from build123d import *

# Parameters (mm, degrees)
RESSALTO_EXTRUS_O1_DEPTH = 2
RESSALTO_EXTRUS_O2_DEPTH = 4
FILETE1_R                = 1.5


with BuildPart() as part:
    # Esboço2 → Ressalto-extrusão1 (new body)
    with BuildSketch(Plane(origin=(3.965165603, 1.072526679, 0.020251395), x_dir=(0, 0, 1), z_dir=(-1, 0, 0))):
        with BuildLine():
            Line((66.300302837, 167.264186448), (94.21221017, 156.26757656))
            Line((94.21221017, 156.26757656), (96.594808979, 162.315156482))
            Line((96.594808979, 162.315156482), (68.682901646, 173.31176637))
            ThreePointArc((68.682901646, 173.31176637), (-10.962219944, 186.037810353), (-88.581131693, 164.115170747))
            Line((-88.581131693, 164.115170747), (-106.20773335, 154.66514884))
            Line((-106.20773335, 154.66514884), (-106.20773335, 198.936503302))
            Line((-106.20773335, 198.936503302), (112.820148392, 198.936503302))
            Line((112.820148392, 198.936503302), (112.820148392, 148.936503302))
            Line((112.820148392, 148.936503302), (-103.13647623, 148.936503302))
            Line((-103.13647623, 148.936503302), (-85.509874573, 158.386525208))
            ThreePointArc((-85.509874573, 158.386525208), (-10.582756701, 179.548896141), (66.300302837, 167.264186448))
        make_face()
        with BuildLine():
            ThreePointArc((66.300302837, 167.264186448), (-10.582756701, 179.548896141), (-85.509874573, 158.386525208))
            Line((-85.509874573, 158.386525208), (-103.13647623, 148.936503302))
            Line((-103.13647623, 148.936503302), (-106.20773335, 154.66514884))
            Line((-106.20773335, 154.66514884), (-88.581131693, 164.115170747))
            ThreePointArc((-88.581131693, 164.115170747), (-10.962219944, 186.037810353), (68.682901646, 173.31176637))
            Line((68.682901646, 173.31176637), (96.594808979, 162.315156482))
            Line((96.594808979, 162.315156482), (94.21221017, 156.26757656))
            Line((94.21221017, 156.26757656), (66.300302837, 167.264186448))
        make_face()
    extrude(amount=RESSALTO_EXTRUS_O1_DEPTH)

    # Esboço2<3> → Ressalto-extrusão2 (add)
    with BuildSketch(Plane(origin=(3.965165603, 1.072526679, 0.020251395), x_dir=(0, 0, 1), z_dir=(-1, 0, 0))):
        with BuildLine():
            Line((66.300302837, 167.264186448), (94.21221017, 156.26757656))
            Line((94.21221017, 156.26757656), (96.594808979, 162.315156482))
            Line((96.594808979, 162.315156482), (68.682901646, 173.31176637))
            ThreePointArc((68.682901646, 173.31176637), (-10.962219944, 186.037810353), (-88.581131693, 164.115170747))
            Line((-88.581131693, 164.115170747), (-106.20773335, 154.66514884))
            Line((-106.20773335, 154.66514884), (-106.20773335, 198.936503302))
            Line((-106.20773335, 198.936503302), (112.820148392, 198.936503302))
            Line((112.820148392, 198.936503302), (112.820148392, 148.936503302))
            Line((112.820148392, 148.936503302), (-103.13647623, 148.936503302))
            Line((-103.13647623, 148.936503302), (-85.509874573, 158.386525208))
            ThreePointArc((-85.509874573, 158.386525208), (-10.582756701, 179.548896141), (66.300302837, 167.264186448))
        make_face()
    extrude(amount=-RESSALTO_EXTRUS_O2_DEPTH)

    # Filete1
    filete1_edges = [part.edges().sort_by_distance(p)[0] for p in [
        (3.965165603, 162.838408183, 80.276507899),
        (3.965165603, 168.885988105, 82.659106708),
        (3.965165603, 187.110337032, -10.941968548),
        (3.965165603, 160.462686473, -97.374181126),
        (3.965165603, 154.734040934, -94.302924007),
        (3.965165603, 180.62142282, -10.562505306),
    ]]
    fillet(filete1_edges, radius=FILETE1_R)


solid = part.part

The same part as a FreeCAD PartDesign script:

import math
import FreeCAD as App
import Part
import Sketcher

V = App.Vector
Q = App.Units.Quantity


def edges_at(feature, points):
    """Names of the edges that pass closest to the given points."""
    edges = feature.Shape.Edges
    near = lambda p: min(range(len(edges)), key=lambda i: edges[i].distToShape(Part.Vertex(*p))[0])
    return sorted({f"Edge{near(p) + 1}" for p in points})


def add_polygon(sketch, points):
    """Adds a closed chain of lines whose ends are joined by coincident constraints."""
    first, n = sketch.GeometryCount, len(points)
    for a, b in zip(points, points[1:] + points[:1]):
        sketch.addGeometry(Part.LineSegment(App.Vector(*a, 0), App.Vector(*b, 0)), False)
    for i in range(n):
        sketch.addConstraint(Sketcher.Constraint("Coincident", first + i, 2, first + (i + 1) % n, 1))

doc = App.newDocument("Part")
body = doc.addObject("PartDesign::Body", "Body")

# Sketch on YZ plane
sketch1 = body.newObject("Sketcher::SketchObject", "Sketch")
sketch1.AttachmentSupport = (doc.getObject("YZ_Plane"), [""])
sketch1.MapMode = "FlatFace"
sketch1.AttachmentOffset = App.Placement(V(0, 0, 3.965166), App.Rotation())
add_polygon(sketch1, [(200.00903, -106.187482), (155.737676, -106.187482), (150.00903, -103.116225), (150.00903, 112.8404), (200.00903, 112.8404)])  # lines 0-4
sketch1.addConstraint(Sketcher.Constraint("Horizontal", 0))
sketch1.addConstraint(Sketcher.Constraint("Vertical", 2))
sketch1.addConstraint(Sketcher.Constraint("Horizontal", 3))
sketch1.addConstraint(Sketcher.Constraint("Vertical", 4))
sketch1.addConstraint(Sketcher.Constraint("DistanceX", 3, 1, 3, 2, Q("50 mm")))
sketch1.addConstraint(Sketcher.Constraint("Distance", 1, Q("6.5 mm")))
sketch1.addConstraint(Sketcher.Constraint("DistanceY", 4, 2, 4, 1, Q("219.027882 mm")))
sketch1.addConstraint(Sketcher.Constraint("DistanceY", -1, 1, 2, 2, Q("112.8404 mm")))
sketch1.addConstraint(Sketcher.Constraint("DistanceX", 0, 2, 0, 1, Q("44.271354 mm")))
sketch1.addConstraint(Sketcher.Constraint("DistanceX", -1, 1, 1, 2, Q("150.00903 mm")))
pad1 = body.newObject("PartDesign::Pad", "Pad")
pad1.Profile = sketch1
pad1.Length = 2
pad1.Reversed = True

# Sketch on YZ plane
sketch2 = body.newObject("Sketcher::SketchObject", "Sketch001")
sketch2.AttachmentSupport = (doc.getObject("YZ_Plane"), [""])
sketch2.MapMode = "FlatFace"
sketch2.AttachmentOffset = App.Placement(V(0, 0, 3.965166), App.Rotation())
sketch2.addGeometry(Part.LineSegment(V(157.340103, 94.232462, 0), V(168.336713, 66.320554, 0)), False)
sketch2.addGeometry(Part.ArcOfCircle(Part.Circle(V(0, 0, 0), V(0, 0, 1), 180.93), math.radians(-28.196771), math.radians(21.503229)), False)
sketch2.addGeometry(Part.LineSegment(V(159.459052, -85.489623, 0), V(150.00903, -103.116225, 0)), False)
sketch2.addGeometry(Part.LineSegment(V(150.00903, -103.116225, 0), V(150.00903, 112.8404, 0)), False)
sketch2.addGeometry(Part.LineSegment(V(150.00903, 112.8404, 0), V(200.00903, 112.8404, 0)), False)
sketch2.addGeometry(Part.LineSegment(V(200.00903, 112.8404, 0), V(200.00903, -106.187482, 0)), False)
sketch2.addGeometry(Part.LineSegment(V(200.00903, -106.187482, 0), V(155.737676, -106.187482, 0)), False)
sketch2.addGeometry(Part.LineSegment(V(155.737676, -106.187482, 0), V(165.187697, -88.56088, 0)), False)
sketch2.addGeometry(Part.ArcOfCircle(Part.Circle(V(0, 0, 0), V(0, 0, 1), 187.43), math.radians(-28.196771), math.radians(21.503229)), False)
sketch2.addGeometry(Part.LineSegment(V(174.384293, 68.703153, 0), V(163.387683, 96.61506, 0)), False)
sketch2.addGeometry(Part.LineSegment(V(163.387683, 96.61506, 0), V(157.340103, 94.232462, 0)), False)
sketch2.addConstraint(Sketcher.Constraint("Tangent", 0, 2, 1, 2))
sketch2.addConstraint(Sketcher.Constraint("Tangent", 1, 1, 2, 1))
sketch2.addConstraint(Sketcher.Constraint("Coincident", 2, 2, 3, 1))
sketch2.addConstraint(Sketcher.Constraint("Coincident", 3, 2, 4, 1))
sketch2.addConstraint(Sketcher.Constraint("Coincident", 4, 2, 5, 1))
sketch2.addConstraint(Sketcher.Constraint("Coincident", 5, 2, 6, 1))
sketch2.addConstraint(Sketcher.Constraint("Coincident", 6, 2, 7, 1))
sketch2.addConstraint(Sketcher.Constraint("Tangent", 7, 2, 8, 1))
sketch2.addConstraint(Sketcher.Constraint("Tangent", 8, 2, 9, 1))
sketch2.addConstraint(Sketcher.Constraint("Coincident", 9, 2, 10, 1))
sketch2.addConstraint(Sketcher.Constraint("Coincident", 10, 2, 0, 1))
sketch2.addConstraint(Sketcher.Constraint("Vertical", 3))
sketch2.addConstraint(Sketcher.Constraint("Horizontal", 4))
sketch2.addConstraint(Sketcher.Constraint("Vertical", 5))
sketch2.addConstraint(Sketcher.Constraint("Horizontal", 6))
sketch2.addConstraint(Sketcher.Constraint("Coincident", 1, 3, -1, 1))
sketch2.addConstraint(Sketcher.Constraint("Coincident", 8, 3, -1, 1))
sketch2.addConstraint(Sketcher.Constraint("Parallel", 2, 7))
sketch2.addConstraint(Sketcher.Constraint("Parallel", 0, 9))
sketch2.addConstraint(Sketcher.Constraint("Perpendicular", 9, 10))
sketch2.addConstraint(Sketcher.Constraint("Equal", 2, 7))
sketch2.addConstraint(Sketcher.Constraint("DistanceX", 4, 1, 4, 2, Q("50 mm")))
sketch2.addConstraint(Sketcher.Constraint("Radius", 1, Q("180.93 mm")))
sketch2.addConstraint(Sketcher.Constraint("Radius", 8, Q("187.43 mm")))
sketch2.addConstraint(Sketcher.Constraint("Distance", 0, Q("30 mm")))
sketch2.addConstraint(Sketcher.Constraint("Distance", 2, Q("20 mm")))
sketch2.addConstraint(Sketcher.Constraint("DistanceY", 5, 2, 5, 1, Q("219.027882 mm")))
sketch2.addConstraint(Sketcher.Constraint("DistanceY", -1, 1, 3, 2, Q("112.8404 mm")))
sketch2.addConstraint(Sketcher.Constraint("DistanceY", 10, 2, 9, 2, Q("2.382599 mm")))
pad2 = body.newObject("PartDesign::Pad", "Pad001")
pad2.Profile = sketch2
pad2.Length = 4
doc.recompute()

fillet = body.newObject("PartDesign::Fillet", "Fillet")
fillet.Base = (pad2, edges_at(pad2, [
    (3.965, 162.838, 80.277),
    (3.965, 168.886, 82.659),
    (3.965, 187.11, -10.942),
    (3.965, 160.463, -97.374),
    (3.965, 154.734, -94.303),
    (3.965, 180.621, -10.563),
]))
fillet.Radius = 1.5

doc.recompute()
